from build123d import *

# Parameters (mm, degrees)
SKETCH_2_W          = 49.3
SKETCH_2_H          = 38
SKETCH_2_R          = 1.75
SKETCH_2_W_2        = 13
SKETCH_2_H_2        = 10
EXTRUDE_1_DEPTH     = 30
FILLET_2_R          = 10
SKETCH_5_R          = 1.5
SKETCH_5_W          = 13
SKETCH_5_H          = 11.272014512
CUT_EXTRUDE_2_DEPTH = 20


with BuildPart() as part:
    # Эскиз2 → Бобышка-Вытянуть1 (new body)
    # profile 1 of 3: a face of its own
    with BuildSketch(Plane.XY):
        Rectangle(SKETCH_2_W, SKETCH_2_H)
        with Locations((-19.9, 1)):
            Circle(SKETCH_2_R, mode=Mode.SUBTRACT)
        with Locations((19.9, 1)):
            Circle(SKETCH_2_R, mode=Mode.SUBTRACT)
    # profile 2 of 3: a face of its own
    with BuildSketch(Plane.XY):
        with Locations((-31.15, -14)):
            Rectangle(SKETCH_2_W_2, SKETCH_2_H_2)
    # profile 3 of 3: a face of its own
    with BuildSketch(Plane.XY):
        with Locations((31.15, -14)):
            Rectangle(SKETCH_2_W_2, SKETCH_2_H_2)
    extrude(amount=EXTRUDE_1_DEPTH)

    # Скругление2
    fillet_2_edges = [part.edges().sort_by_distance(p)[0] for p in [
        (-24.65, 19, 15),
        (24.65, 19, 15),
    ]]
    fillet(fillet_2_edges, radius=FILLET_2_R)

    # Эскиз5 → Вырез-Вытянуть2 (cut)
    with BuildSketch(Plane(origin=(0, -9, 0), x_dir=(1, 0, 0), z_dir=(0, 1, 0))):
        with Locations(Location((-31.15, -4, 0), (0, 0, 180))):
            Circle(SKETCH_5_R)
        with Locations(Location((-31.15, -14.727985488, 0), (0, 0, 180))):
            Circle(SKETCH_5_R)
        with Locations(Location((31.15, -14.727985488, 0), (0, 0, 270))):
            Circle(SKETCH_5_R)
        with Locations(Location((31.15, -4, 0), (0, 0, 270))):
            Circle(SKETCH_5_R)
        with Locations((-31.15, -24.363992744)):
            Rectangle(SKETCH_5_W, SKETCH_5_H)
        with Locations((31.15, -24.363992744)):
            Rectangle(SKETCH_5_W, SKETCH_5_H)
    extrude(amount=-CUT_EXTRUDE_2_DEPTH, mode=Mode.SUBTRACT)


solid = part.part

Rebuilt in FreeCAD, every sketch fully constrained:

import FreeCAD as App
import Part
import Sketcher
from FreeCAD import Vector
Q = App.Units.Quantity


def edges_at(feature, points):
    """Names of the edges that pass closest to the given points."""
    edges = feature.Shape.Edges
    near = lambda p: min(range(len(edges)), key=lambda i: edges[i].distToShape(Part.Vertex(*p))[0])
    return sorted({f"Edge{near(p) + 1}" for p in points})

doc = App.newDocument("Part")
body = doc.addObject("PartDesign::Body", "Body")

# Sketch on XY plane
sketch1 = body.newObject("Sketcher::SketchObject", "Sketch")
sketch1.AttachmentSupport = (doc.getObject("XY_Plane"), [""])
sketch1.MapMode = "FlatFace"
sketch1.addGeometry(Part.LineSegment(Vector(-24.6, 19, 0), Vector(-24.6, -9, 0)), False)
sketch1.addGeometry(Part.LineSegment(Vector(-24.6, -9, 0), Vector(-37.6, -9, 0)), False)
sketch1.addGeometry(Part.LineSegment(Vector(-37.6, -9, 0), Vector(-37.6, -19, 0)), False)
sketch1.addGeometry(Part.LineSegment(Vector(-37.6, -19, 0), Vector(37.6, -19, 0)), False)
sketch1.addGeometry(Part.LineSegment(Vector(37.6, -19, 0), Vector(37.6, -9, 0)), False)
sketch1.addGeometry(Part.LineSegment(Vector(37.6, -9, 0), Vector(24.6, -9, 0)), False)
sketch1.addGeometry(Part.LineSegment(Vector(24.6, -9, 0), Vector(24.6, 19, 0)), False)
sketch1.addGeometry(Part.LineSegment(Vector(24.6, 19, 0), Vector(-24.6, 19, 0)), False)
sketch1.addGeometry(Part.Circle(Vector(-19.9, 1, 0), Vector(0, 0, 1), 1.8), False)
sketch1.addGeometry(Part.Circle(Vector(19.9, 1, 0), Vector(0, 0, 1), 1.8), False)
sketch1.addConstraint(Sketcher.Constraint("Coincident", 0, 2, 1, 1))
sketch1.addConstraint(Sketcher.Constraint("Coincident", 1, 2, 2, 1))
sketch1.addConstraint(Sketcher.Constraint("Coincident", 2, 2, 3, 1))
sketch1.addConstraint(Sketcher.Constraint("Coincident", 3, 2, 4, 1))
sketch1.addConstraint(Sketcher.Constraint("Coincident", 4, 2, 5, 1))
sketch1.addConstraint(Sketcher.Constraint("Coincident", 5, 2, 6, 1))
sketch1.addConstraint(Sketcher.Constraint("Coincident", 6, 2, 7, 1))
sketch1.addConstraint(Sketcher.Constraint("Coincident", 7, 2, 0, 1))
sketch1.addConstraint(Sketcher.Constraint("Vertical", 0))
sketch1.addConstraint(Sketcher.Constraint("Horizontal", 1))
sketch1.addConstraint(Sketcher.Constraint("Vertical", 2))
sketch1.addConstraint(Sketcher.Constraint("Horizontal", 3))
sketch1.addConstraint(Sketcher.Constraint("Vertical", 4))
sketch1.addConstraint(Sketcher.Constraint("Horizontal", 5))
sketch1.addConstraint(Sketcher.Constraint("Vertical", 6))
sketch1.addConstraint(Sketcher.Constraint("Horizontal", 7))
sketch1.addConstraint(Sketcher.Constraint("Equal", 8, 9))
sketch1.addConstraint(Sketcher.Constraint("Symmetric", 8, 3, 9, 3, -2))
sketch1.addConstraint(Sketcher.Constraint("Symmetric", 1, 2, 4, 2, -2))
sketch1.addConstraint(Sketcher.Constraint("Equal", 1, 5))
sketch1.addConstraint(Sketcher.Constraint("Diameter", 8, Q("3.5 mm")))
sketch1.addConstraint(Sketcher.Constraint("DistanceX", 1, 2, 1, 1, Q("13 mm")))
sketch1.addConstraint(Sketcher.Constraint("DistanceY", 0, 2, 0, 1, Q("28 mm")))
sketch1.addConstraint(Sketcher.Constraint("DistanceY", 2, 2, 2, 1, Q("10 mm")))
sketch1.addConstraint(Sketcher.Constraint("DistanceX", 3, 1, 3, 2, Q("75.3 mm")))
sketch1.addConstraint(Sketcher.Constraint("DistanceY", -1, 1, 8, 3, Q("1 mm")))
sketch1.addConstraint(Sketcher.Constraint("DistanceY", 0, 2, -1, 1, Q("9 mm")))
sketch1.addConstraint(Sketcher.Constraint("DistanceX", 8, 3, -1, 1, Q("19.9 mm")))
pad1 = body.newObject("PartDesign::Pad", "Pad")
pad1.Profile = sketch1
pad1.Length = 30
doc.recompute()

fillet = body.newObject("PartDesign::Fillet", "Fillet")
fillet.Base = (pad1, edges_at(pad1, [(-24.65, 19, 15), (24.65, 19, 15)]))
fillet.Radius = 10

# Sketch on XZ plane
sketch2 = body.newObject("Sketcher::SketchObject", "Sketch001")
sketch2.AttachmentSupport = (doc.getObject("XZ_Plane"), [""])
sketch2.MapMode = "FlatFace"
sketch2.AttachmentOffset = App.Placement(Vector(0, 0, 9), App.Rotation())
sketch2.addGeometry(Part.Circle(Vector(-31.1, 4, 0), Vector(0, 0, 1), 1.5), False)
sketch2.addGeometry(Part.Circle(Vector(-31.1, 14.7, 0), Vector(0, 0, 1), 1.5), False)
sketch2.addGeometry(Part.Circle(Vector(31.1, 14.7, 0), Vector(0, 0, 1), 1.5), False)
sketch2.addGeometry(Part.Circle(Vector(31.1, 4, 0), Vector(0, 0, 1), 1.5), False)
sketch2.addGeometry(Part.LineSegment(Vector(-37.6, 18.7, 0), Vector(-37.6, 30, 0)), False)
sketch2.addGeometry(Part.LineSegment(Vector(-37.6, 30, 0), Vector(-24.6, 30, 0)), False)
sketch2.addGeometry(Part.LineSegment(Vector(-24.6, 30, 0), Vector(-24.6, 18.7, 0)), False)
sketch2.addGeometry(Part.LineSegment(Vector(-24.6, 18.7, 0), Vector(-37.6, 18.7, 0)), False)
sketch2.addGeometry(Part.LineSegment(Vector(24.6, 18.7, 0), Vector(24.6, 30, 0)), False)
sketch2.addGeometry(Part.LineSegment(Vector(24.6, 30, 0), Vector(37.6, 30, 0)), False)
sketch2.addGeometry(Part.LineSegment(Vector(37.6, 30, 0), Vector(37.6, 18.7, 0)), False)
sketch2.addGeometry(Part.LineSegment(Vector(37.6, 18.7, 0), Vector(24.6, 18.7, 0)), False)
sketch2.addConstraint(Sketcher.Constraint("Coincident", 4, 2, 5, 1))
sketch2.addConstraint(Sketcher.Constraint("Coincident", 5, 2, 6, 1))
sketch2.addConstraint(Sketcher.Constraint("Coincident", 6, 2, 7, 1))
sketch2.addConstraint(Sketcher.Constraint("Coincident", 7, 2, 4, 1))
sketch2.addConstraint(Sketcher.Constraint("Coincident", 8, 2, 9, 1))
sketch2.addConstraint(Sketcher.Constraint("Coincident", 9, 2, 10, 1))
sketch2.addConstraint(Sketcher.Constraint("Coincident", 10, 2, 11, 1))
sketch2.addConstraint(Sketcher.Constraint("Coincident", 11, 2, 8, 1))
sketch2.addConstraint(Sketcher.Constraint("Vertical", 4))
sketch2.addConstraint(Sketcher.Constraint("Horizontal", 5))
sketch2.addConstraint(Sketcher.Constraint("Vertical", 6))
sketch2.addConstraint(Sketcher.Constraint("Horizontal", 7))
sketch2.addConstraint(Sketcher.Constraint("Vertical", 8))
sketch2.addConstraint(Sketcher.Constraint("Horizontal", 9))
sketch2.addConstraint(Sketcher.Constraint("Vertical", 10))
sketch2.addConstraint(Sketcher.Constraint("Horizontal", 11))
sketch2.addConstraint(Sketcher.Constraint("Equal", 0, 1))
sketch2.addConstraint(Sketcher.Constraint("Equal", 1, 2))
sketch2.addConstraint(Sketcher.Constraint("Equal", 2, 3))
sketch2.addConstraint(Sketcher.Constraint("Symmetric", 1, 3, 2, 3, -2))
sketch2.addConstraint(Sketcher.Constraint("Symmetric", 0, 3, 3, 3, -2))
sketch2.addConstraint(Sketcher.Constraint("Symmetric", 5, 2, 8, 2, -2))
sketch2.addConstraint(Sketcher.Constraint("Symmetric", 7, 2, 10, 2, -2))
sketch2.addConstraint(Sketcher.Constraint("Vertical", 0, 3, 1, 3))
sketch2.addConstraint(Sketcher.Constraint("Diameter", 0, Q("3 mm")))
sketch2.addConstraint(Sketcher.Constraint("DistanceX", 5, 1, 5, 2, Q("13 mm")))
sketch2.addConstraint(Sketcher.Constraint("DistanceY", -1, 1, 0, 3, Q("4 mm")))
sketch2.addConstraint(Sketcher.Constraint("DistanceY", -1, 1, 4, 2, Q("30 mm")))
sketch2.addConstraint(Sketcher.Constraint("DistanceY", 1, 3, 6, 2, Q("4 mm")))
sketch2.addConstraint(Sketcher.Constraint("DistanceX", 1, 3, 2, 3, Q("62.3 mm")))
sketch2.addConstraint(Sketcher.Constraint("DistanceX", 4, 2, 1, 3, Q("6.5 mm")))
sketch2.addConstraint(Sketcher.Constraint("DistanceY", 4, 1, 4, 2, Q("11.272015 mm")))
pocket1 = body.newObject("PartDesign::Pocket", "Pocket")
pocket1.Profile = sketch2
pocket1.Length = 20
pocket1.Reversed = True

doc.recompute()
